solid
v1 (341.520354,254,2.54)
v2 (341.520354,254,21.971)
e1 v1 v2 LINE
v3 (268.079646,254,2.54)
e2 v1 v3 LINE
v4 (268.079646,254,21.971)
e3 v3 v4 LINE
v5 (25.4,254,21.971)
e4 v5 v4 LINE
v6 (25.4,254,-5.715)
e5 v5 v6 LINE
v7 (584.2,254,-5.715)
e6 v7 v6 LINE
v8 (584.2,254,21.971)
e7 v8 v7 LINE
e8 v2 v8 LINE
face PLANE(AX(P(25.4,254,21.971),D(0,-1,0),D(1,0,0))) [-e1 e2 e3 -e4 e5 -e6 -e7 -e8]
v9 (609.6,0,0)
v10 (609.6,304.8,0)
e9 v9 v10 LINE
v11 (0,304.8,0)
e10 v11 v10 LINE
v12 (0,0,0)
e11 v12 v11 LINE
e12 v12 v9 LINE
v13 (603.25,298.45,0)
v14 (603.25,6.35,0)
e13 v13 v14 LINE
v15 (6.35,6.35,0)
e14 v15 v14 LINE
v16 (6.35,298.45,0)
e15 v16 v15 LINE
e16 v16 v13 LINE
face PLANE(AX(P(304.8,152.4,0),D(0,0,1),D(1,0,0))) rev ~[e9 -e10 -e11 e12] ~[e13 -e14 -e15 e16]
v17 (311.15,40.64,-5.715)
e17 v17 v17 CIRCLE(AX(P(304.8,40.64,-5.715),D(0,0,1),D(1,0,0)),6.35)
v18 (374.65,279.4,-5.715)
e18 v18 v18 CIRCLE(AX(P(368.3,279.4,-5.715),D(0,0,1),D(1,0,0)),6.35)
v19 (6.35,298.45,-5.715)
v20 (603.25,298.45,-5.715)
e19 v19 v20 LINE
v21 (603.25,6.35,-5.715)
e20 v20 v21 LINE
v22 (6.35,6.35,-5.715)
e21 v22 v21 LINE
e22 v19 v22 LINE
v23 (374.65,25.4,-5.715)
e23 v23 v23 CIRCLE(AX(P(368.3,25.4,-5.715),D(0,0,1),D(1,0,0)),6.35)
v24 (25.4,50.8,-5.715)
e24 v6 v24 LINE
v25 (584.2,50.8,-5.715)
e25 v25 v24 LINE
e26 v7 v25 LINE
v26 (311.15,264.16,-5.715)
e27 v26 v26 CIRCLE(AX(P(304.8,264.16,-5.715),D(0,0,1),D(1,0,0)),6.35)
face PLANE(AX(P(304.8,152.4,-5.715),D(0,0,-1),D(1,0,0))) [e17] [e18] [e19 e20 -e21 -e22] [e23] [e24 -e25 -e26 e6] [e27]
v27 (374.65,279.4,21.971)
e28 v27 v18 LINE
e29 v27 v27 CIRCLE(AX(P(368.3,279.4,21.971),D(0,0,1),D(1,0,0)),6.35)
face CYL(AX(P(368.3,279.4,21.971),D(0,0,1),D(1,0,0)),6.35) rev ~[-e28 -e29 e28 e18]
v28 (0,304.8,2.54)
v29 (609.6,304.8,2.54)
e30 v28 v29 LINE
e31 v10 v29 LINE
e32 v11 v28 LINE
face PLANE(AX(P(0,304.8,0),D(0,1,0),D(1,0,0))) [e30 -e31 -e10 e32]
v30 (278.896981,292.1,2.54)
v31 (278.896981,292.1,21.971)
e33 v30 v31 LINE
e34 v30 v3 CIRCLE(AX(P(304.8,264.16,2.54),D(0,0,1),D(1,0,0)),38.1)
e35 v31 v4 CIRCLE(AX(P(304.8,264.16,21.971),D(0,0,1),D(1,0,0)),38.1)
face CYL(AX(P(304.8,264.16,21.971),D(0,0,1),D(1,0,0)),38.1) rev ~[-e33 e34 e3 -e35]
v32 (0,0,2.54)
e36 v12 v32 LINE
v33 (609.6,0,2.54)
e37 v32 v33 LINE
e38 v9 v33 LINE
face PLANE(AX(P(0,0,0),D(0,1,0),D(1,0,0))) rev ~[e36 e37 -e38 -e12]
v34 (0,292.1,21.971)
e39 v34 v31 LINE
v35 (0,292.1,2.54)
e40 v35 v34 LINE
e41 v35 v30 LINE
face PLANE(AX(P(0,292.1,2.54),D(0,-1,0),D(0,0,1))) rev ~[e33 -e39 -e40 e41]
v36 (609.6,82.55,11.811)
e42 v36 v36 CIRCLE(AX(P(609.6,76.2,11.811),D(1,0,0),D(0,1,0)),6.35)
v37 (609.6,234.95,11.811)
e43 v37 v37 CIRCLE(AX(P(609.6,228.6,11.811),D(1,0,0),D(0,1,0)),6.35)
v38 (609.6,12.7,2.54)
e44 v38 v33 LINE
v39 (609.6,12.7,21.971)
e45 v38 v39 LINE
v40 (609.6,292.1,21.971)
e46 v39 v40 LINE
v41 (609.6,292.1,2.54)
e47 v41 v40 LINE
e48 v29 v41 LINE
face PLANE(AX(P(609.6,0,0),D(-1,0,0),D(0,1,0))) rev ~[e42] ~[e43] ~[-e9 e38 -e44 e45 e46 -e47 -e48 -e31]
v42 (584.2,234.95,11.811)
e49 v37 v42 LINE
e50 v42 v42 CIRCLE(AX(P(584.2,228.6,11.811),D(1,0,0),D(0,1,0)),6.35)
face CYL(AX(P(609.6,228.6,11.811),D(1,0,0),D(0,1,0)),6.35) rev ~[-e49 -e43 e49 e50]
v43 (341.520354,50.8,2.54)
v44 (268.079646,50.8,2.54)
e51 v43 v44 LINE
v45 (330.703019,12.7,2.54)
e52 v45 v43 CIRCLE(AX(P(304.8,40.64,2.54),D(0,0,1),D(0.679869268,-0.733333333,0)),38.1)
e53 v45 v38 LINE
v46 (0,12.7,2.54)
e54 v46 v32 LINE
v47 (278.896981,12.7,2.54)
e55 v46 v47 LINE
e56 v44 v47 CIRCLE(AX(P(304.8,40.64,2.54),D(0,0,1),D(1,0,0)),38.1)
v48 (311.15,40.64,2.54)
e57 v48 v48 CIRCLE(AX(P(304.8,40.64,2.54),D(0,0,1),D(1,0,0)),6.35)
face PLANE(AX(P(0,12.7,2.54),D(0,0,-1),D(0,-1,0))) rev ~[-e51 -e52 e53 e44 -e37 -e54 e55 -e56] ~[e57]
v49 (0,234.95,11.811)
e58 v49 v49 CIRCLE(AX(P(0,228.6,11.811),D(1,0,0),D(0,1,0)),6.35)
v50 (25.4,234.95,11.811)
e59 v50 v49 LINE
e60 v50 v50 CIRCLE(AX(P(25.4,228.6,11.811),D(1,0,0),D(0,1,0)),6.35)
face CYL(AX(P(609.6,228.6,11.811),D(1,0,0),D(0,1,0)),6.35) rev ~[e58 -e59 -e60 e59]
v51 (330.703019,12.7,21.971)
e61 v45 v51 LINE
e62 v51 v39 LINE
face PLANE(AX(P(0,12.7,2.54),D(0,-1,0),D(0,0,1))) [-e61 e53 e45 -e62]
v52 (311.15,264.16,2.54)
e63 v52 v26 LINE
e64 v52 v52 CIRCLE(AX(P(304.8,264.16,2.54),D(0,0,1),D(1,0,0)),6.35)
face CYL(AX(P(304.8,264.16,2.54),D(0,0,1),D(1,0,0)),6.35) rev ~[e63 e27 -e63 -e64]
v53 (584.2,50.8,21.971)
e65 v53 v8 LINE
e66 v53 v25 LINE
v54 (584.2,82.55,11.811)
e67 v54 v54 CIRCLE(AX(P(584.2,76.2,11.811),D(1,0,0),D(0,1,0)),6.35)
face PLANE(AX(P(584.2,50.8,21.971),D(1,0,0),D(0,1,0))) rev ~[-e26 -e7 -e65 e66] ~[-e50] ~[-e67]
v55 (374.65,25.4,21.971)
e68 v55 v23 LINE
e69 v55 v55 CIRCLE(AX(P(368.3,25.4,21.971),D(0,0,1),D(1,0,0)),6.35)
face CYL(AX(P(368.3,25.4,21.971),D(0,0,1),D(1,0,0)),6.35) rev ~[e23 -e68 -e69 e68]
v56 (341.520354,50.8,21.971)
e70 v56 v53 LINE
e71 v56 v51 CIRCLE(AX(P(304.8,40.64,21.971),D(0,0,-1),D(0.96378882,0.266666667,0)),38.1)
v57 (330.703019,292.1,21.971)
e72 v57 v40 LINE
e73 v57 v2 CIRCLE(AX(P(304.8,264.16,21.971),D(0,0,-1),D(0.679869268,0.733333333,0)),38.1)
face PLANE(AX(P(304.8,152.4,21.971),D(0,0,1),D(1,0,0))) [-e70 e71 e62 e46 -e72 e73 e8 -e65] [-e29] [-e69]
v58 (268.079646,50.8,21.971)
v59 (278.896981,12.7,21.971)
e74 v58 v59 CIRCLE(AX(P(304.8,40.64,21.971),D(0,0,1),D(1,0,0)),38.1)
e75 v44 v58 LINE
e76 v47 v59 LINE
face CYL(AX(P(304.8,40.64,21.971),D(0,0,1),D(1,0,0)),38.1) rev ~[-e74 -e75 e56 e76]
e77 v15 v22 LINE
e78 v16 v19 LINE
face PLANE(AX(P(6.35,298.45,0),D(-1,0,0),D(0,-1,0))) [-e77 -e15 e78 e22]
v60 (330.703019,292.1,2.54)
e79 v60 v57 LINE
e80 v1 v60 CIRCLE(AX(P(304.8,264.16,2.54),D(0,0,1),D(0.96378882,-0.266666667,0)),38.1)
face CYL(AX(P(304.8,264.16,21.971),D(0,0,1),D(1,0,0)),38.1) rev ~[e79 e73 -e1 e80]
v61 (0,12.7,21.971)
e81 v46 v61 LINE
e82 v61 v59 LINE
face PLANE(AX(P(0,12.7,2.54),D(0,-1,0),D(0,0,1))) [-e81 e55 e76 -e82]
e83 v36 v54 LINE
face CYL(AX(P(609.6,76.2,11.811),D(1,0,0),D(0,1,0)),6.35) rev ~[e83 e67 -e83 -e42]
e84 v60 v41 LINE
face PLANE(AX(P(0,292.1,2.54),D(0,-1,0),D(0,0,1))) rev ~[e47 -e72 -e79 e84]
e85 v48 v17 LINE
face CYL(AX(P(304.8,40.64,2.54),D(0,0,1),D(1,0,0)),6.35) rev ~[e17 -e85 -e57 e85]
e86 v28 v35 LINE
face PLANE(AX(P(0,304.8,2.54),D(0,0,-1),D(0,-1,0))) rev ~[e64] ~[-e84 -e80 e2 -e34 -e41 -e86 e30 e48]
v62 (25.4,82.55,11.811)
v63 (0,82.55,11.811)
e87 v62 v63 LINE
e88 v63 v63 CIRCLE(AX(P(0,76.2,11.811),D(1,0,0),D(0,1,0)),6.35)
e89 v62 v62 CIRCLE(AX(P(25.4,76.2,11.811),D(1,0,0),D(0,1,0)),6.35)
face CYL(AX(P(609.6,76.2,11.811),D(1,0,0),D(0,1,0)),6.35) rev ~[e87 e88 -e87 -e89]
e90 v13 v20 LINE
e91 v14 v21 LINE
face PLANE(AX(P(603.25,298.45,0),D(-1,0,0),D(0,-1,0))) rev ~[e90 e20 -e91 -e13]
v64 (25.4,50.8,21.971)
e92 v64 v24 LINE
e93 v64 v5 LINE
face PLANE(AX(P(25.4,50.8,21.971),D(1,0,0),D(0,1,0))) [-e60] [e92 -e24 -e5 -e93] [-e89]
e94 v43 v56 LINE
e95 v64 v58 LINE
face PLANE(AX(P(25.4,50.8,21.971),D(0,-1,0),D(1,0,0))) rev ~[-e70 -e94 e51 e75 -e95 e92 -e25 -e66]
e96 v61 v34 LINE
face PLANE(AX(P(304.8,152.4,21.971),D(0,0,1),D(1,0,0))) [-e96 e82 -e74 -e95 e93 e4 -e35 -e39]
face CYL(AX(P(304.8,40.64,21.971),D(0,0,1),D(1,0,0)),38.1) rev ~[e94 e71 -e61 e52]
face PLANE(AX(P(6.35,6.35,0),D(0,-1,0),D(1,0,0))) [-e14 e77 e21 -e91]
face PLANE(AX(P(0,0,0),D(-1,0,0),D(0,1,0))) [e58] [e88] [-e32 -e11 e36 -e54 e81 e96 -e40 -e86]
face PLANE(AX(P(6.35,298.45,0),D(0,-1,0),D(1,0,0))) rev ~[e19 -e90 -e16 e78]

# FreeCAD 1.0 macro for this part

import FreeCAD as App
import Part
import Sketcher

V = App.Vector
Q = App.Units.Quantity

doc = App.newDocument("Part")
body = doc.addObject("PartDesign::Body", "Body")

# Sketch on XY plane
sketch1 = body.newObject("Sketcher::SketchObject", "Sketch")
sketch1.AttachmentSupport = (doc.getObject("XY_Plane"), [""])
sketch1.MapMode = "FlatFace"
sketch1.addGeometry(Part.LineSegment(V(0, 305, 0), V(0, 0, 0)), False)
sketch1.addGeometry(Part.LineSegment(V(0, 0, 0), V(610, 0, 0)), False)
sketch1.addGeometry(Part.LineSegment(V(610, 0, 0), V(610, 305, 0)), False)
sketch1.addGeometry(Part.LineSegment(V(610, 305, 0), V(0, 305, 0)), False)
sketch1.addConstraint(Sketcher.Constraint("Coincident", 0, 2, 1, 1))
sketch1.addConstraint(Sketcher.Constraint("Coincident", 1, 2, 2, 1))
sketch1.addConstraint(Sketcher.Constraint("Coincident", 2, 2, 3, 1))
sketch1.addConstraint(Sketcher.Constraint("Coincident", 3, 2, 0, 1))
sketch1.addConstraint(Sketcher.Constraint("Vertical", 0))
sketch1.addConstraint(Sketcher.Constraint("Horizontal", 1))
sketch1.addConstraint(Sketcher.Constraint("Vertical", 2))
sketch1.addConstraint(Sketcher.Constraint("Horizontal", 3))
sketch1.addConstraint(Sketcher.Constraint("Coincident", 0, 2, -1, 1))
sketch1.addConstraint(Sketcher.Constraint("DistanceX", 1, 1, 1, 2, Q("24 in")))
sketch1.addConstraint(Sketcher.Constraint("DistanceY", 0, 2, 0, 1, Q("12 in")))
pad1 = body.newObject("PartDesign::Pad", "Pad")
pad1.Profile = sketch1
pad1.Length = Q("0.865 in")

# Sketch on XY plane
sketch2 = body.newObject("Sketcher::SketchObject", "Sketch001")
sketch2.AttachmentSupport = (doc.getObject("XY_Plane"), [""])
sketch2.MapMode = "FlatFace"
sketch2.addGeometry(Part.LineSegment(V(6, 6, 0), V(6, 298, 0)), False)
sketch2.addGeometry(Part.LineSegment(V(6, 298, 0), V(603, 298, 0)), False)
sketch2.addGeometry(Part.LineSegment(V(603, 298, 0), V(603, 6, 0)), False)
sketch2.addGeometry(Part.LineSegment(V(603, 6, 0), V(6, 6, 0)), False)
sketch2.addConstraint(Sketcher.Constraint("Coincident", 0, 2, 1, 1))
sketch2.addConstraint(Sketcher.Constraint("Coincident", 1, 2, 2, 1))
sketch2.addConstraint(Sketcher.Constraint("Coincident", 2, 2, 3, 1))
sketch2.addConstraint(Sketcher.Constraint("Coincident", 3, 2, 0, 1))
sketch2.addConstraint(Sketcher.Constraint("Vertical", 0))
sketch2.addConstraint(Sketcher.Constraint("Horizontal", 1))
sketch2.addConstraint(Sketcher.Constraint("Vertical", 2))
sketch2.addConstraint(Sketcher.Constraint("Horizontal", 3))
sketch2.addConstraint(Sketcher.Constraint("DistanceX", 1, 1, 1, 2, Q("23.5 in")))
sketch2.addConstraint(Sketcher.Constraint("DistanceY", 0, 1, 0, 2, Q("11.5 in")))
sketch2.addConstraint(Sketcher.Constraint("DistanceX", -1, 1, 0, 2, Q("0.25 in")))
sketch2.addConstraint(Sketcher.Constraint("DistanceY", -1, 1, 0, 2, Q("11.75 in")))
pad2 = body.newObject("PartDesign::Pad", "Pad001")
pad2.Profile = sketch2
pad2.Length = Q("0.225 in")
pad2.Reversed = True

# Sketch on XY plane
sketch3 = body.newObject("Sketcher::SketchObject", "Sketch002")
sketch3.AttachmentSupport = (doc.getObject("XY_Plane"), [""])
sketch3.MapMode = "FlatFace"
sketch3.AttachmentOffset = App.Placement(V(0, 0, 0.865 * 25.4), App.Rotation())
sketch3.addGeometry(Part.LineSegment(V(25, 254, 0), V(25, 51, 0)), False)
sketch3.addGeometry(Part.LineSegment(V(25, 51, 0), V(584, 51, 0)), False)
sketch3.addGeometry(Part.LineSegment(V(584, 51, 0), V(584, 254, 0)), False)
sketch3.addGeometry(Part.LineSegment(V(584, 254, 0), V(25, 254, 0)), False)
sketch3.addConstraint(Sketcher.Constraint("Coincident", 0, 2, 1, 1))
sketch3.addConstraint(Sketcher.Constraint("Coincident", 1, 2, 2, 1))
sketch3.addConstraint(Sketcher.Constraint("Coincident", 2, 2, 3, 1))
sketch3.addConstraint(Sketcher.Constraint("Coincident", 3, 2, 0, 1))
sketch3.addConstraint(Sketcher.Constraint("Vertical", 0))
sketch3.addConstraint(Sketcher.Constraint("Horizontal", 1))
sketch3.addConstraint(Sketcher.Constraint("Vertical", 2))
sketch3.addConstraint(Sketcher.Constraint("Horizontal", 3))
sketch3.addConstraint(Sketcher.Constraint("DistanceX", 1, 1, 1, 2, Q("22 in")))
sketch3.addConstraint(Sketcher.Constraint("DistanceY", 0, 2, 0, 1, Q("8 in")))
sketch3.addConstraint(Sketcher.Constraint("DistanceX", -1, 1, 0, 2, Q("1 in")))
sketch3.addConstraint(Sketcher.Constraint("DistanceY", -1, 1, 0, 2, Q("2 in")))
pocket1 = body.newObject("PartDesign::Pocket", "Pocket")
pocket1.Profile = sketch3
pocket1.Type = "ThroughAll"

# Sketch on YZ plane
sketch4 = body.newObject("Sketcher::SketchObject", "Sketch003")
sketch4.AttachmentSupport = (doc.getObject("YZ_Plane"), [""])
sketch4.MapMode = "FlatFace"
sketch4.addGeometry(Part.LineSegment(V(305, 22, 0), V(305, 3, 0)), False)
sketch4.addGeometry(Part.LineSegment(V(305, 3, 0), V(292, 3, 0)), False)
sketch4.addGeometry(Part.LineSegment(V(292, 3, 0), V(292, 22, 0)), False)
sketch4.addGeometry(Part.LineSegment(V(292, 22, 0), V(305, 22, 0)), False)
sketch4.addGeometry(Part.LineSegment(V(13, 22, 0), V(13, 3, 0)), False)
sketch4.addGeometry(Part.LineSegment(V(13, 3, 0), V(0, 3, 0)), False)
sketch4.addGeometry(Part.LineSegment(V(0, 3, 0), V(0, 22, 0)), False)
sketch4.addGeometry(Part.LineSegment(V(0, 22, 0), V(13, 22, 0)), False)
sketch4.addConstraint(Sketcher.Constraint("Coincident", 0, 2, 1, 1))
sketch4.addConstraint(Sketcher.Constraint("Coincident", 1, 2, 2, 1))
sketch4.addConstraint(Sketcher.Constraint("Coincident", 2, 2, 3, 1))
sketch4.addConstraint(Sketcher.Constraint("Coincident", 3, 2, 0, 1))
sketch4.addConstraint(Sketcher.Constraint("Coincident", 4, 2, 5, 1))
sketch4.addConstraint(Sketcher.Constraint("Coincident", 5, 2, 6, 1))
sketch4.addConstraint(Sketcher.Constraint("Coincident", 6, 2, 7, 1))
sketch4.addConstraint(Sketcher.Constraint("Coincident", 7, 2, 4, 1))
sketch4.addConstraint(Sketcher.Constraint("Vertical", 0))
sketch4.addConstraint(Sketcher.Constraint("Horizontal", 1))
sketch4.addConstraint(Sketcher.Constraint("Vertical", 2))
sketch4.addConstraint(Sketcher.Constraint("Horizontal", 3))
sketch4.addConstraint(Sketcher.Constraint("Vertical", 4))
sketch4.addConstraint(Sketcher.Constraint("Horizontal", 5))
sketch4.addConstraint(Sketcher.Constraint("Vertical", 6))
sketch4.addConstraint(Sketcher.Constraint("Horizontal", 7))
sketch4.addConstraint(Sketcher.Constraint("PointOnObject", 5, 2, -2))
sketch4.addConstraint(Sketcher.Constraint("Horizontal", 1, 2, 4, 2))
sketch4.addConstraint(Sketcher.Constraint("Horizontal", 3, 2, 6, 2))
sketch4.addConstraint(Sketcher.Constraint("Equal", 3, 5))
sketch4.addConstraint(Sketcher.Constraint("DistanceX", 1, 2, 1, 1, Q("0.5 in")))
sketch4.addConstraint(Sketcher.Constraint("DistanceX", -1, 1, 0, 2, Q("12 in")))
sketch4.addConstraint(Sketcher.Constraint("DistanceY", -1, 1, 0, 2, Q("0.1 in")))
sketch4.addConstraint(Sketcher.Constraint("DistanceY", 0, 2, 0, 1, Q("0.765 in")))
pocket2 = body.newObject("PartDesign::Pocket", "Pocket001")
pocket2.Profile = sketch4
pocket2.Type = "ThroughAll"
pocket2.Reversed = True

# Sketch on XY plane
sketch5 = body.newObject("Sketcher::SketchObject", "Sketch004")
sketch5.AttachmentSupport = (doc.getObject("XY_Plane"), [""])
sketch5.MapMode = "FlatFace"
sketch5.AttachmentOffset = App.Placement(V(0, 0, 0.865 * 25.4), App.Rotation())
sketch5.addGeometry(Part.Circle(V(305, 41, 0), V(0, 0, 1), 38), False)
sketch5.addGeometry(Part.Circle(V(305, 264, 0), V(0, 0, 1), 38), False)
sketch5.addConstraint(Sketcher.Constraint("Equal", 0, 1))
sketch5.addConstraint(Sketcher.Constraint("Vertical", 0, 3, 1, 3))
sketch5.addConstraint(Sketcher.Constraint("Diameter", 0, Q("3 in")))
sketch5.addConstraint(Sketcher.Constraint("DistanceX", -1, 1, 0, 3, Q("12 in")))
sketch5.addConstraint(Sketcher.Constraint("DistanceY", -1, 1, 0, 3, Q("1.6 in")))
sketch5.addConstraint(Sketcher.Constraint("DistanceY", -1, 1, 1, 3, Q("10.4 in")))
pocket3 = body.newObject("PartDesign::Pocket", "Pocket002")
pocket3.Profile = sketch5
pocket3.Length = Q("0.765 in")

# Sketch on XY plane
sketch6 = body.newObject("Sketcher::SketchObject", "Sketch005")
sketch6.AttachmentSupport = (doc.getObject("XY_Plane"), [""])
sketch6.MapMode = "FlatFace"
sketch6.AttachmentOffset = App.Placement(V(0, 0, 0.1 * 25.4), App.Rotation())
sketch6.addGeometry(Part.Circle(V(305, 264, 0), V(0, 0, 1), 6), False)
sketch6.addGeometry(Part.Circle(V(305, 41, 0), V(0, 0, 1), 6), False)
sketch6.addConstraint(Sketcher.Constraint("Equal", 0, 1))
sketch6.addConstraint(Sketcher.Constraint("Vertical", 0, 3, 1, 3))
sketch6.addConstraint(Sketcher.Constraint("Diameter", 0, Q("0.5 in")))
sketch6.addConstraint(Sketcher.Constraint("DistanceX", -1, 1, 0, 3, Q("12 in")))
sketch6.addConstraint(Sketcher.Constraint("DistanceY", -1, 1, 0, 3, Q("10.4 in")))
sketch6.addConstraint(Sketcher.Constraint("DistanceY", -1, 1, 1, 3, Q("1.6 in")))
pocket4 = body.newObject("PartDesign::Pocket", "Pocket003")
pocket4.Profile = sketch6
pocket4.Type = "ThroughAll"

# Sketch on YZ plane
sketch7 = body.newObject("Sketcher::SketchObject", "Sketch006")
sketch7.AttachmentSupport = (doc.getObject("YZ_Plane"), [""])
sketch7.MapMode = "FlatFace"
sketch7.AttachmentOffset = App.Placement(V(0, 0, 24 * 25.4), App.Rotation())
sketch7.addGeometry(Part.Circle(V(229, 12, 0), V(0, 0, 1), 6), False)
sketch7.addGeometry(Part.Circle(V(76, 12, 0), V(0, 0, 1), 6), False)
sketch7.addConstraint(Sketcher.Constraint("Equal", 0, 1))
sketch7.addConstraint(Sketcher.Constraint("Horizontal", 0, 3, 1, 3))
sketch7.addConstraint(Sketcher.Constraint("Diameter", 0, Q("0.5 in")))
sketch7.addConstraint(Sketcher.Constraint("DistanceX", -1, 1, 0, 3, Q("9 in")))
sketch7.addConstraint(Sketcher.Constraint("DistanceX", -1, 1, 1, 3, Q("3 in")))
sketch7.addConstraint(Sketcher.Constraint("DistanceY", -1, 1, 0, 3, Q("0.465 in")))
pocket5 = body.newObject("PartDesign::Pocket", "Pocket004")
pocket5.Profile = sketch7
pocket5.Type = "ThroughAll"

# Sketch on XY plane
sketch8 = body.newObject("Sketcher::SketchObject", "Sketch007")
sketch8.AttachmentSupport = (doc.getObject("XY_Plane"), [""])
sketch8.MapMode = "FlatFace"
sketch8.AttachmentOffset = App.Placement(V(0, 0, 0.865 * 25.4), App.Rotation())
sketch8.addGeometry(Part.Circle(V(368, 25, 0), V(0, 0, 1), 6), False)
sketch8.addGeometry(Part.Circle(V(368, 279, 0), V(0, 0, 1), 6), False)
sketch8.addConstraint(Sketcher.Constraint("Equal", 0, 1))
sketch8.addConstraint(Sketcher.Constraint("Vertical", 0, 3, 1, 3))
sketch8.addConstraint(Sketcher.Constraint("Diameter", 0, Q("0.5 in")))
sketch8.addConstraint(Sketcher.Constraint("DistanceY", -1, 1, 0, 3, Q("1 in")))
sketch8.addConstraint(Sketcher.Constraint("DistanceY", -1, 1, 1, 3, Q("11 in")))
sketch8.addConstraint(Sketcher.Constraint("DistanceX", -1, 1, 0, 3, Q("14.5 in")))
pocket6 = body.newObject("PartDesign::Pocket", "Pocket005")
pocket6.Profile = sketch8
pocket6.Type = "ThroughAll"

doc.recompute()
